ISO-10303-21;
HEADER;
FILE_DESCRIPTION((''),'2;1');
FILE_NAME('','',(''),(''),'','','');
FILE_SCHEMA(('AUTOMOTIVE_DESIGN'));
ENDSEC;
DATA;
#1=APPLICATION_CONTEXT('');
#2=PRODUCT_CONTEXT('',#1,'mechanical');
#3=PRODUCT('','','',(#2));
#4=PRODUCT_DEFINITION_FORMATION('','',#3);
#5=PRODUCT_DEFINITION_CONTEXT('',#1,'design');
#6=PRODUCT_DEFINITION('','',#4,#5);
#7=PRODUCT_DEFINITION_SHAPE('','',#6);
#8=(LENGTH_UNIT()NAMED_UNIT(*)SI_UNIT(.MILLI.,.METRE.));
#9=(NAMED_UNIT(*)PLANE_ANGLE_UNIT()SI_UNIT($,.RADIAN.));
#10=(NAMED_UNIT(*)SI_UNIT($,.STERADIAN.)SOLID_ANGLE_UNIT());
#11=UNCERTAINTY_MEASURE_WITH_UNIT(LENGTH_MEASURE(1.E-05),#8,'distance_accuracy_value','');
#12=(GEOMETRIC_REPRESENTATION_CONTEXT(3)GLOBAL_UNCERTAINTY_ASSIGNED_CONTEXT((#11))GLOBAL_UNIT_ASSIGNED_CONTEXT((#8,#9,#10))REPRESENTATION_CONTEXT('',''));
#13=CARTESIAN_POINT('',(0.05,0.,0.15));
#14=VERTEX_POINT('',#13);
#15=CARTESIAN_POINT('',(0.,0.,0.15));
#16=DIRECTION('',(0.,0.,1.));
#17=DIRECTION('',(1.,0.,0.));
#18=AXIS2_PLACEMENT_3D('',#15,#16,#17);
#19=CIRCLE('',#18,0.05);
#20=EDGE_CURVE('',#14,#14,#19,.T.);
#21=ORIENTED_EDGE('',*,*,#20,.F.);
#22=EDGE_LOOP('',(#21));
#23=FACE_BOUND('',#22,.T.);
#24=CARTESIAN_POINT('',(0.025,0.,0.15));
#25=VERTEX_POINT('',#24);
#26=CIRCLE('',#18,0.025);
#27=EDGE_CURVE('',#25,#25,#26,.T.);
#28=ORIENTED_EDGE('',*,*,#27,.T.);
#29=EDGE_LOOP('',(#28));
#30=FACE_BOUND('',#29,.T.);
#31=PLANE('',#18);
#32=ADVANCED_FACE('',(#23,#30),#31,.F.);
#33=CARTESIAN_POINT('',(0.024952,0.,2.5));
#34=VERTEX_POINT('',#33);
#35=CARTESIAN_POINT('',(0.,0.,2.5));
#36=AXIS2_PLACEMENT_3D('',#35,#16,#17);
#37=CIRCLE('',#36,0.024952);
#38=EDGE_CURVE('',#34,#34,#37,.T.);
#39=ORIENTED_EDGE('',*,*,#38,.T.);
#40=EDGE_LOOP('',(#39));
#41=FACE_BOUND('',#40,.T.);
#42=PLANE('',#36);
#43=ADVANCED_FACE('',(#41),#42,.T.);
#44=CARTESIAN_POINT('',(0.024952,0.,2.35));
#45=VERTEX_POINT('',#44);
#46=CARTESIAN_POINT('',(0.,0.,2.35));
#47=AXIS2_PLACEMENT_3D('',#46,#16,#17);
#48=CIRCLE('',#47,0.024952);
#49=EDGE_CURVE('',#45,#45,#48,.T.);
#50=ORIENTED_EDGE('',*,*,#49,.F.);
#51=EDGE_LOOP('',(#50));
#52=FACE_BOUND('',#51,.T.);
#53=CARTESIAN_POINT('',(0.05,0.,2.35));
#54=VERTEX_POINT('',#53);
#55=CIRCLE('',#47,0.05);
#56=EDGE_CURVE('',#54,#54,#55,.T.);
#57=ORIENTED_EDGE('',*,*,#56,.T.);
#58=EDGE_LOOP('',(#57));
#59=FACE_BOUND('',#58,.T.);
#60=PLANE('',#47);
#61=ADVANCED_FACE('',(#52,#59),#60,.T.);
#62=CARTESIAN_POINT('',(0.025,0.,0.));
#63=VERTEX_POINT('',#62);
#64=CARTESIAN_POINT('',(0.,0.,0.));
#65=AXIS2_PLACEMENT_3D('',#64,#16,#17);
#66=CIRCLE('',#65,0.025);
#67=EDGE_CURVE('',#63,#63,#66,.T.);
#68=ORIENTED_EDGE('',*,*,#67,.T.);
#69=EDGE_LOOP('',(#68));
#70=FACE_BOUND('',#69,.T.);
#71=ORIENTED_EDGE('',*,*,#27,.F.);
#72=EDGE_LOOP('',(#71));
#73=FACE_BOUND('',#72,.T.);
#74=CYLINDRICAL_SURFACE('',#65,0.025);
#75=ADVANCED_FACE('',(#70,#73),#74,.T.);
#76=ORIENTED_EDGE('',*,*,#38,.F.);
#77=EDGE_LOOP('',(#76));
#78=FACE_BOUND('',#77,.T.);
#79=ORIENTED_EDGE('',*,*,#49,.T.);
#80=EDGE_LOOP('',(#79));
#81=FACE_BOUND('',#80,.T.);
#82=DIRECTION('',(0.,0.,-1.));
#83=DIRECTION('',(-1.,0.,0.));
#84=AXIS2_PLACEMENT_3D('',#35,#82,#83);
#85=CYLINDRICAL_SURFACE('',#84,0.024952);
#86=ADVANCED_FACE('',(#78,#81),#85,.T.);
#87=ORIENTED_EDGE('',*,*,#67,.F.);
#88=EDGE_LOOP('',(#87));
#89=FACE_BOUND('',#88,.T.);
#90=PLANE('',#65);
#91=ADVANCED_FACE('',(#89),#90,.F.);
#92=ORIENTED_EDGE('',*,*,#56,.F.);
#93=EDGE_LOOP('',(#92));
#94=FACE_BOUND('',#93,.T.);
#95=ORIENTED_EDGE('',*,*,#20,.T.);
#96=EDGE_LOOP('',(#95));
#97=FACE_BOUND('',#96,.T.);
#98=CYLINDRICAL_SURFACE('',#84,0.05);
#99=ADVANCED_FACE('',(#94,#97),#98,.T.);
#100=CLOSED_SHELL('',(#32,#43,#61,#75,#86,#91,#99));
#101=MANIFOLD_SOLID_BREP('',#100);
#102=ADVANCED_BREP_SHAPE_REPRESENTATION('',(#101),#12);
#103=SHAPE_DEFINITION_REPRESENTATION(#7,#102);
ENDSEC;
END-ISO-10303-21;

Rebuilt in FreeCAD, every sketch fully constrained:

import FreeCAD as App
import Part
import Sketcher

V = App.Vector
Q = App.Units.Quantity

doc = App.newDocument("Part")
params = doc.addObject("Spreadsheet::Sheet", "Params")
for row, (alias, value) in enumerate([
    ("sketch1_diameter", "0.1 mm"),
    ("pad1_length", "2.5 mm"),
    ("sketch2_diameter", "0.1 mm"),
    ("sketch3_diameter", "0.05 mm"),
    ("pad2_length", "0.15 mm"),
    ("sketch4_diameter", "0.1 mm"),
    ("pocket2_length", "0.15 mm"),
    ("pad3_length", "0.15 mm"),
], start=1):
    params.set(f"A{row}", alias)
    params.set(f"B{row}", "=" + value)
    params.setAlias(f"B{row}", alias)

body = doc.addObject("PartDesign::Body", "Body")

# Sketch on XY plane
sketch1 = body.newObject("Sketcher::SketchObject", "Sketch")
sketch1.AttachmentSupport = (doc.getObject("XY_Plane"), [""])
sketch1.MapMode = "FlatFace"
sketch1.addGeometry(Part.Circle(V(0, 0, 0), V(0, 0, 1), 0.05), False)
sketch1.addConstraint([
    Sketcher.Constraint("Coincident", 0, 3, -1, 1),
    Sketcher.Constraint("Diameter", 0, Q("0.1 mm")),
])
sketch1.setExpression("Constraints[1]", "Params.sketch1_diameter")
pad1 = body.newObject("PartDesign::Pad", "Pad")
pad1.Profile = sketch1
pad1.setExpression("Length", "Params.pad1_length")

# Sketch on XY plane
sketch2 = body.newObject("Sketcher::SketchObject", "Sketch001")
sketch2.AttachmentSupport = (doc.getObject("XY_Plane"), [""])
sketch2.MapMode = "FlatFace"
sketch2.AttachmentOffset = App.Placement(V(0, 0, 0.15), App.Rotation())
sketch2.addGeometry(Part.Circle(V(0, 0, 0), V(0, 0, 1), 0.05), False)
sketch2.addConstraint([
    Sketcher.Constraint("Coincident", 0, 3, -1, 1),
    Sketcher.Constraint("Diameter", 0, Q("0.1 mm")),
])
sketch2.setExpression("Constraints[1]", "Params.sketch2_diameter")
pocket1 = body.newObject("PartDesign::Pocket", "Pocket")
pocket1.Profile = sketch2
pocket1.Type = "ThroughAll"

# Sketch on XY plane
sketch3 = body.newObject("Sketcher::SketchObject", "Sketch002")
sketch3.AttachmentSupport = (doc.getObject("XY_Plane"), [""])
sketch3.MapMode = "FlatFace"
sketch3.AttachmentOffset = App.Placement(V(0, 0, 0.15), App.Rotation())
sketch3.addGeometry(Part.Circle(V(0, 0, 0), V(0, 0, 1), 0.025), False)
sketch3.addConstraint([
    Sketcher.Constraint("Coincident", 0, 3, -1, 1),
    Sketcher.Constraint("Diameter", 0, Q("0.05 mm")),
])
sketch3.setExpression("Constraints[1]", "Params.sketch3_diameter")
pad2 = body.newObject("PartDesign::Pad", "Pad001")
pad2.Profile = sketch3
pad2.setExpression("Length", "Params.pad2_length")
pad2.Reversed = True

# Sketch on XY plane
sketch4 = body.newObject("Sketcher::SketchObject", "Sketch003")
sketch4.AttachmentSupport = (doc.getObject("XY_Plane"), [""])
sketch4.MapMode = "FlatFace"
sketch4.AttachmentOffset = App.Placement(V(0, 0, 2.35), App.Rotation())
sketch4.addGeometry(Part.Circle(V(0, 0, 0), V(0, 0, 1), 0.05), False)
sketch4.addConstraint([
    Sketcher.Constraint("Coincident", 0, 3, -1, 1),
    Sketcher.Constraint("Diameter", 0, Q("0.1 mm")),
])
sketch4.setExpression("Constraints[1]", "Params.sketch4_diameter")
pocket2 = body.newObject("PartDesign::Pocket", "Pocket001")
pocket2.Profile = sketch4
pocket2.setExpression("Length", "Params.pocket2_length")
pocket2.Reversed = True

# Sketch on XY plane
sketch5 = body.newObject("Sketcher::SketchObject", "Sketch004")
sketch5.AttachmentSupport = (doc.getObject("XY_Plane"), [""])
sketch5.MapMode = "FlatFace"
sketch5.AttachmentOffset = App.Placement(V(0, 0, 2.35), App.Rotation())
sketch5.addGeometry(Part.Circle(V(0, 0, 0), V(0, 0, 1), 0.024952), False)
sketch5.addConstraint([
    Sketcher.Constraint("Coincident", 0, 3, -1, 1),
    Sketcher.Constraint("Diameter", 0, Q("0.049903 mm")),
])
pad3 = body.newObject("PartDesign::Pad", "Pad002")
pad3.Profile = sketch5
pad3.setExpression("Length", "Params.pad3_length")

doc.recompute()
